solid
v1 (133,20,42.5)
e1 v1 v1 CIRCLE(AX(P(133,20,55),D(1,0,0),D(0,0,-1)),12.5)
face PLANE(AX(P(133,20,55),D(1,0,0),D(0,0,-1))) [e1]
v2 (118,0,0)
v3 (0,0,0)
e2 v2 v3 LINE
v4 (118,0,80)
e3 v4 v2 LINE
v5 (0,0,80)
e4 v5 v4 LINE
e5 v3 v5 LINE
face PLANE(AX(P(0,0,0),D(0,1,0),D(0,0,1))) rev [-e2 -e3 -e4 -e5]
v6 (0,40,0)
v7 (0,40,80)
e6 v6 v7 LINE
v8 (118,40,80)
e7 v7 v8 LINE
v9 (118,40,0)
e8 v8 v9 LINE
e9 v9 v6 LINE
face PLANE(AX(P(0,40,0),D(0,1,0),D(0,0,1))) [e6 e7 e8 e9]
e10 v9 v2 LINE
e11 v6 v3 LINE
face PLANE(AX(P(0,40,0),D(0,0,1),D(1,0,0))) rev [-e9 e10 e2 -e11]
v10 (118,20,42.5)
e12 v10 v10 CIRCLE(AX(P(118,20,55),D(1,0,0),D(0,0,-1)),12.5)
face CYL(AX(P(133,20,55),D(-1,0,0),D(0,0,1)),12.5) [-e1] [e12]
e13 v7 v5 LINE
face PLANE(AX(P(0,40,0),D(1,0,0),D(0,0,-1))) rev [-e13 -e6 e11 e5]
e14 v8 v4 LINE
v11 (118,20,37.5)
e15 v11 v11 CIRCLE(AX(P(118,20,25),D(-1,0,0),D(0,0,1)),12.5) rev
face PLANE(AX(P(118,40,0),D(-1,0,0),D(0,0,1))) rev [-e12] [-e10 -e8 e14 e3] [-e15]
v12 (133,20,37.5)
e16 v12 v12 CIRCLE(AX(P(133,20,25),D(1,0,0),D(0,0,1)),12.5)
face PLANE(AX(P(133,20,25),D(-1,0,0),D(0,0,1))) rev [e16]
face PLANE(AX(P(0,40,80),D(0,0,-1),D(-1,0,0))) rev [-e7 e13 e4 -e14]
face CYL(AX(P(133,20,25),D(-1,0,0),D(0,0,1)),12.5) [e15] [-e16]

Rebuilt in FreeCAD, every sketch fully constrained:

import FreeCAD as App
import Part
import Sketcher


def add_polygon(sketch, points):
    """Adds a closed chain of lines whose ends are joined by coincident constraints."""
    first, n = sketch.GeometryCount, len(points)
    for a, b in zip(points, points[1:] + points[:1]):
        sketch.addGeometry(Part.LineSegment(App.Vector(*a, 0), App.Vector(*b, 0)), False)
    for i in range(n):
        sketch.addConstraint(Sketcher.Constraint("Coincident", first + i, 2, first + (i + 1) % n, 1))

doc = App.newDocument("Part")
body = doc.addObject("PartDesign::Body", "Body")

# Sketch on XZ plane
sketch1 = body.newObject("Sketcher::SketchObject", "Sketch")
sketch1.AttachmentSupport = (doc.getObject("XZ_Plane"), [""])
sketch1.MapMode = "FlatFace"
add_polygon(sketch1, [(0, 0), (0, 80), (118, 80), (118, 0)])  # lines 0-3
sketch1.addConstraint(Sketcher.Constraint("Vertical", 0))
sketch1.addConstraint(Sketcher.Constraint("Horizontal", 1))
sketch1.addConstraint(Sketcher.Constraint("Vertical", 2))
sketch1.addConstraint(Sketcher.Constraint("Horizontal", 3))
sketch1.addConstraint(Sketcher.Constraint("Coincident", 3, 2, -1, 1))
sketch1.addConstraint(Sketcher.Constraint("DistanceX", 1, 1, 1, 2, 118.0))
sketch1.addConstraint(Sketcher.Constraint("DistanceY", 0, 1, 0, 2, 80.0))
pad1 = body.newObject("PartDesign::Pad", "Pad")
pad1.Profile = sketch1
pad1.Length = 40
pad1.Reversed = True

# Sketch on YZ plane
sketch2 = body.newObject("Sketcher::SketchObject", "Sketch001")
sketch2.AttachmentSupport = (doc.getObject("YZ_Plane"), [""])
sketch2.MapMode = "FlatFace"
sketch2.AttachmentOffset = App.Placement(App.Vector(0, 0, 118), App.Rotation())
sketch2.addGeometry(Part.Circle(App.Vector(20, 55, 0), App.Vector(0, 0, 1), 12.5), False)
sketch2.addGeometry(Part.Circle(App.Vector(20, 25, 0), App.Vector(0, 0, 1), 12.5), False)
sketch2.addConstraint(Sketcher.Constraint("Equal", 0, 1))
sketch2.addConstraint(Sketcher.Constraint("Vertical", 0, 3, 1, 3))
sketch2.addConstraint(Sketcher.Constraint("Diameter", 0, 25.0))
sketch2.addConstraint(Sketcher.Constraint("DistanceX", -1, 1, 0, 3, 20.0))
sketch2.addConstraint(Sketcher.Constraint("DistanceY", -1, 1, 0, 3, 55.0))
sketch2.addConstraint(Sketcher.Constraint("DistanceY", -1, 1, 1, 3, 25.0))
pad2 = body.newObject("PartDesign::Pad", "Pad001")
pad2.Profile = sketch2
pad2.Length = 15

doc.recompute()
